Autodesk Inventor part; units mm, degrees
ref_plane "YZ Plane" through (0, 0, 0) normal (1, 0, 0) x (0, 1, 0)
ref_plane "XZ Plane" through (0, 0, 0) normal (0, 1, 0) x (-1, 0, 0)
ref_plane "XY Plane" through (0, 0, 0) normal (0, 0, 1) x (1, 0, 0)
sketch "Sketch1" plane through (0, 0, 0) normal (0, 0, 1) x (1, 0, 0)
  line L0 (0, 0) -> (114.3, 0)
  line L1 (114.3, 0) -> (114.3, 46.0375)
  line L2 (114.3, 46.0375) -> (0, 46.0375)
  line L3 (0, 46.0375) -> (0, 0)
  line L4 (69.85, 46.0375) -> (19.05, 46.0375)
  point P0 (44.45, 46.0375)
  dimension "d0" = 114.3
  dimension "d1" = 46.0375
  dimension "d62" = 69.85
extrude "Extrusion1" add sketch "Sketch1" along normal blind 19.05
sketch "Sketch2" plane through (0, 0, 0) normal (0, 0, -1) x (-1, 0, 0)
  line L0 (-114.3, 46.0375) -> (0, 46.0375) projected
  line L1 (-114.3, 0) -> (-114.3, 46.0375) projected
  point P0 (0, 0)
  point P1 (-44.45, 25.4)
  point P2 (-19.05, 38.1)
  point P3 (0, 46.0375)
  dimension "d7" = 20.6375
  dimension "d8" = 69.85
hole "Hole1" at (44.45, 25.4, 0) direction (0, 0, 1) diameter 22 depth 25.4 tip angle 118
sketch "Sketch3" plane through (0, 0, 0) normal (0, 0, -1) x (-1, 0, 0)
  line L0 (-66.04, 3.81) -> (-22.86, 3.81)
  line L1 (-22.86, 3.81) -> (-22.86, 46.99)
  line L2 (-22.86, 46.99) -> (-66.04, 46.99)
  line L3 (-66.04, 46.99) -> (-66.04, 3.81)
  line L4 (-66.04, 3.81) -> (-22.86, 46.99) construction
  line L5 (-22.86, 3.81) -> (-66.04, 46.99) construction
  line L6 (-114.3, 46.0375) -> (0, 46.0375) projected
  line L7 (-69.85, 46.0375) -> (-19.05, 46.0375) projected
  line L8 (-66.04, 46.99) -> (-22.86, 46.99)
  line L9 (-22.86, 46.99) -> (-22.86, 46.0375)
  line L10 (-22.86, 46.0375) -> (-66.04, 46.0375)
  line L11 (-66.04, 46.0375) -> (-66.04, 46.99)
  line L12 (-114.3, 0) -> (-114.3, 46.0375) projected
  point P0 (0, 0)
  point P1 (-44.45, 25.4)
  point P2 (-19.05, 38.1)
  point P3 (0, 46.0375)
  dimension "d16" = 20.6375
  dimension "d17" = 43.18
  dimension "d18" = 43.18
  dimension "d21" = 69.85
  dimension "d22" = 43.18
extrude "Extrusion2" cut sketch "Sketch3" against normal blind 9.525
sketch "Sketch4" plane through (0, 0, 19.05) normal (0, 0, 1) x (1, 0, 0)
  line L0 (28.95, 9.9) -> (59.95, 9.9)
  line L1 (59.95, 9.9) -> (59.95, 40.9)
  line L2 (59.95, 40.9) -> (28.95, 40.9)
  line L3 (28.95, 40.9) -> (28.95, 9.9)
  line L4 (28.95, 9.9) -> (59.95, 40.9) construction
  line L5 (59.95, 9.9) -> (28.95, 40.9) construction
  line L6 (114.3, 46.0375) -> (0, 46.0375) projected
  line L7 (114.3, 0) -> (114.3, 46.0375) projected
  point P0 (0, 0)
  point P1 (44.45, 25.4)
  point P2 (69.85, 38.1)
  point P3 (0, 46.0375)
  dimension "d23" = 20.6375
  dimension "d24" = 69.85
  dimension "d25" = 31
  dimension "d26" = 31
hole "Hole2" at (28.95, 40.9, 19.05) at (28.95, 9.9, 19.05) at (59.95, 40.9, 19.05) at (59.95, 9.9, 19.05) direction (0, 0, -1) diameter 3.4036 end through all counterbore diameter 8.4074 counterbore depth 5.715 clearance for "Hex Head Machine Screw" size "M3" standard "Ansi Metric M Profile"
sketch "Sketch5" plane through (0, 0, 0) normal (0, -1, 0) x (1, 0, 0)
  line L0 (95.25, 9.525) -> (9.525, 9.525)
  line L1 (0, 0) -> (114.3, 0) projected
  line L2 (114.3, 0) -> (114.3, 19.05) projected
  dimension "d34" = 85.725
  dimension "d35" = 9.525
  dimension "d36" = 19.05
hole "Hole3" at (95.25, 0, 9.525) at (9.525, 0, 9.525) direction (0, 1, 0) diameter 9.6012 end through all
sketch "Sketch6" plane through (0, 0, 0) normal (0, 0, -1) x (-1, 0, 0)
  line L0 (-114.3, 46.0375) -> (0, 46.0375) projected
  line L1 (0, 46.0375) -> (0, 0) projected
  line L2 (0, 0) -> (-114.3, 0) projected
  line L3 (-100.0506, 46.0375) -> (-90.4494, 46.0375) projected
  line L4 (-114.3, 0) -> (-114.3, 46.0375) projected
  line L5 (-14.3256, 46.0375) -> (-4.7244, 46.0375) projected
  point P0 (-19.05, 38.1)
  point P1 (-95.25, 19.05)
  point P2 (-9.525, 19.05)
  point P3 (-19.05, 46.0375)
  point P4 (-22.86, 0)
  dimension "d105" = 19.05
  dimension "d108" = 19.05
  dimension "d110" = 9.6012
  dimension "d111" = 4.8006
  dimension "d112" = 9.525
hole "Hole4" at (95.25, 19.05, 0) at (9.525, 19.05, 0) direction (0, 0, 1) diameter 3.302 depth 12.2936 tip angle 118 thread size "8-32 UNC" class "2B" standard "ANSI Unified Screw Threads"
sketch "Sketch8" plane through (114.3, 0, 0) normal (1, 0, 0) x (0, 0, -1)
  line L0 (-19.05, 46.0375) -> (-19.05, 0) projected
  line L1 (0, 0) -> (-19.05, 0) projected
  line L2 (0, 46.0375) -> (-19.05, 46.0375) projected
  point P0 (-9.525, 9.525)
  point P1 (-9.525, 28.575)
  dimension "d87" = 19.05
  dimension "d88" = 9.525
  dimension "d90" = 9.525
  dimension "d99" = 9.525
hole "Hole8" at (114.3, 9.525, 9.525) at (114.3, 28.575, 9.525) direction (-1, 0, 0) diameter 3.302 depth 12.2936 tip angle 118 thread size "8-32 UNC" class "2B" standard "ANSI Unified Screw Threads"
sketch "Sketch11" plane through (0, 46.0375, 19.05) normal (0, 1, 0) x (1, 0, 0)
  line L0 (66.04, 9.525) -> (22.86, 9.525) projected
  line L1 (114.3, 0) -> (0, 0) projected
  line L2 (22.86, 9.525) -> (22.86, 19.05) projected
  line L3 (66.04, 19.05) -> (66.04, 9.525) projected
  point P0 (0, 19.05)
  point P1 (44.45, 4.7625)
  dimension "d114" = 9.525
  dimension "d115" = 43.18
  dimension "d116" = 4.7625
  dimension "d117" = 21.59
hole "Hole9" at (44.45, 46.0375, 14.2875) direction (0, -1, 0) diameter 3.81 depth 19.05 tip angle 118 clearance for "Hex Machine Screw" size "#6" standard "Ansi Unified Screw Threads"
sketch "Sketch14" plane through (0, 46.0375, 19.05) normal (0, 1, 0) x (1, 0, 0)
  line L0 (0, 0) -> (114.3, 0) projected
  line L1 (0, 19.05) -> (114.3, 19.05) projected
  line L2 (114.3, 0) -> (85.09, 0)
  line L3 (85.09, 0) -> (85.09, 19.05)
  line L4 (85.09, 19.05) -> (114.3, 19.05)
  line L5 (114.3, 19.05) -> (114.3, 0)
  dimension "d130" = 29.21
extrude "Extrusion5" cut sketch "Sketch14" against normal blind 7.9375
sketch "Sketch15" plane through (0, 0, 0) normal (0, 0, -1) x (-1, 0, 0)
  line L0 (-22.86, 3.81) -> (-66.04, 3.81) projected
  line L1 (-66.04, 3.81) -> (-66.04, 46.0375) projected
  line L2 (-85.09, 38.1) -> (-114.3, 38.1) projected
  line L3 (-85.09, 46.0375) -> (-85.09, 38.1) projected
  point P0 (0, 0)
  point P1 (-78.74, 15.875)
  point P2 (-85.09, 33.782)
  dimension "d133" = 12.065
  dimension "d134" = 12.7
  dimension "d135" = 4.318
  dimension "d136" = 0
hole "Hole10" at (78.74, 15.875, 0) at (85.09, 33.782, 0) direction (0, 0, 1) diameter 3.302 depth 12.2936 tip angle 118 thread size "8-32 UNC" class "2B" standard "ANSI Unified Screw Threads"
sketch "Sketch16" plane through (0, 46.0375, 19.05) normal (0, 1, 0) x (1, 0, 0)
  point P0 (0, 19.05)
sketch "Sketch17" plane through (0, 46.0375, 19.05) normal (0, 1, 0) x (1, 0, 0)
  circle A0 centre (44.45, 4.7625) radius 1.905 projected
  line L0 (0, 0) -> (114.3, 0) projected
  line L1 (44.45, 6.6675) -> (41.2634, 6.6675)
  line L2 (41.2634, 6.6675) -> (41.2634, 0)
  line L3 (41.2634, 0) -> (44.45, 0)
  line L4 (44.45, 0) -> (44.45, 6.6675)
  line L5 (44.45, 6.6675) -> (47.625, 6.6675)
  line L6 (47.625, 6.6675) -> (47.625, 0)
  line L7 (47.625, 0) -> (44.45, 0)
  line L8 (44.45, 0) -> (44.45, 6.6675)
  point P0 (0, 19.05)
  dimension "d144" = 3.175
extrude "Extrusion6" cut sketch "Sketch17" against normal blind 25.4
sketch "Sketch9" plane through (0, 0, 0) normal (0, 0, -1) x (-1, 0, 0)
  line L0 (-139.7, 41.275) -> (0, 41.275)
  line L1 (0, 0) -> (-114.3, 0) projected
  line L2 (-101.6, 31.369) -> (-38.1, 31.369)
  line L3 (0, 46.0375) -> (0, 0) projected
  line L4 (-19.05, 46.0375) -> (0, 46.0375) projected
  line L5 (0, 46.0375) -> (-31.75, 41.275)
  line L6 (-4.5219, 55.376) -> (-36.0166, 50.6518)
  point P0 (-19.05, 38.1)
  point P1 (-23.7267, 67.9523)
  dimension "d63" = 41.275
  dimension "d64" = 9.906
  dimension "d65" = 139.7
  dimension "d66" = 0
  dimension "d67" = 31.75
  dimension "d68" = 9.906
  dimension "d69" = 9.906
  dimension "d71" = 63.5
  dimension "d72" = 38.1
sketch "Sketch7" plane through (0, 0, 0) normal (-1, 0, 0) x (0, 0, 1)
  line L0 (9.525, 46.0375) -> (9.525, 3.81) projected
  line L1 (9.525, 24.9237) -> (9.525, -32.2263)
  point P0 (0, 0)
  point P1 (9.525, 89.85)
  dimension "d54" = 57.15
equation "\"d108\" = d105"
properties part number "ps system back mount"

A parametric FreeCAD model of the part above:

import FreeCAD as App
import Part
import Sketcher

V = App.Vector
Q = App.Units.Quantity


def add_polygon(sketch, points):
    """Adds a closed chain of lines whose ends are joined by coincident constraints."""
    first, n = sketch.GeometryCount, len(points)
    for a, b in zip(points, points[1:] + points[:1]):
        sketch.addGeometry(Part.LineSegment(App.Vector(*a, 0), App.Vector(*b, 0)), False)
    for i in range(n):
        sketch.addConstraint(Sketcher.Constraint("Coincident", first + i, 2, first + (i + 1) % n, 1))

doc = App.newDocument("Part")
params = doc.addObject("Spreadsheet::Sheet", "Params")
for row, (alias, value) in enumerate([
    ("sketch1_width", "4.5 in"),
    ("sketch1_height", "1.8125 in"),
    ("pad1_length", "0.75 in"),
    ("hole_diameter", "22 mm"),
    ("hole_depth", "1 in"),
    ("sketch3_width", "1.7 in"),
    ("pocket1_length", "0.375 in"),
    ("sketch4_diameter", "0.134 in"),
    ("hole2_diameter", "0.134 in"),
    ("hole2_cbore_diameter", "0.331 in"),
    ("hole2_cbore_depth", "0.225 in"),
    ("sketch5_diameter", "0.378 in"),
    ("hole3_diameter", "0.378 in"),
    ("sketch6_diameter", "0.13 in"),
    ("hole4_diameter", "0.13 in"),
    ("hole4_depth", "0.484 in"),
    ("sketch7_diameter", "0.13 in"),
    ("hole5_diameter", "0.13 in"),
    ("hole5_depth", "0.484 in"),
    ("sketch8_diameter", "0.15 in"),
    ("hole6_diameter", "0.15 in"),
    ("hole6_depth", "0.75 in"),
    ("sketch9_width", "1.15 in"),
    ("sketch9_height", "0.75 in"),
    ("pocket2_length", "0.3125 in"),
    ("sketch10_diameter", "0.13 in"),
    ("hole7_diameter", "0.13 in"),
    ("hole7_depth", "0.484 in"),
    ("pocket3_length", "1 in"),
], start=1):
    params.set(f"A{row}", alias)
    params.set(f"B{row}", "=" + value)
    params.setAlias(f"B{row}", alias)

body = doc.addObject("PartDesign::Body", "Body")

# Sketch on XY plane
sketch1 = body.newObject("Sketcher::SketchObject", "Sketch")
sketch1.AttachmentSupport = (doc.getObject("XY_Plane"), [""])
sketch1.MapMode = "FlatFace"
add_polygon(sketch1, [(0, 46), (0, 0), (114, 0), (114, 46)])  # lines 0-3
sketch1.addConstraint(Sketcher.Constraint("Vertical", 0))
sketch1.addConstraint(Sketcher.Constraint("Horizontal", 1))
sketch1.addConstraint(Sketcher.Constraint("Vertical", 2))
sketch1.addConstraint(Sketcher.Constraint("Horizontal", 3))
sketch1.addConstraint(Sketcher.Constraint("Coincident", 0, 2, -1, 1))
sketch1.addConstraint(Sketcher.Constraint("DistanceX", 1, 1, 1, 2, Q("4.5 in")))
sketch1.addConstraint(Sketcher.Constraint("DistanceY", 0, 2, 0, 1, Q("1.8125 in")))
sketch1.setExpression("Constraints[9]", "Params.sketch1_width")
sketch1.setExpression("Constraints[10]", "Params.sketch1_height")
pad1 = body.newObject("PartDesign::Pad", "Pad")
pad1.Profile = sketch1
pad1.setExpression("Length", "Params.pad1_length")

# Sketch on XY plane
sketch2 = body.newObject("Sketcher::SketchObject", "Sketch001")
sketch2.AttachmentSupport = (doc.getObject("XY_Plane"), [""])
sketch2.MapMode = "FlatFace"
sketch2.addGeometry(Part.Circle(V(44, 25, 0), V(0, 0, 1), 11), False)
sketch2.addConstraint(Sketcher.Constraint("DistanceY", -1, 1, 0, 3, Q("1 in")))
sketch2.addConstraint(Sketcher.Constraint("Diameter", 0, Q("22 mm")))
sketch2.addConstraint(Sketcher.Constraint("DistanceX", -1, 1, 0, 3, Q("1.75 in")))
doc.recompute()
hole = body.newObject("PartDesign::Hole", "Hole")
hole.Profile = sketch2
hole.ThreadType = "None"
hole.setExpression("Diameter", "Params.hole_diameter")
hole.DepthType = "Dimension"
hole.setExpression("Depth", "Params.hole_depth")
hole.DrillPoint = "Angled"
hole.DrillPointAngle = 118
hole.Reversed = True

# Sketch on XY plane
sketch3 = body.newObject("Sketcher::SketchObject", "Sketch002")
sketch3.AttachmentSupport = (doc.getObject("XY_Plane"), [""])
sketch3.MapMode = "FlatFace"
add_polygon(sketch3, [(66, 4), (23, 4), (23, 47), (66, 47)])  # lines 0-3
sketch3.addConstraint(Sketcher.Constraint("Horizontal", 0))
sketch3.addConstraint(Sketcher.Constraint("Vertical", 1))
sketch3.addConstraint(Sketcher.Constraint("Horizontal", 2))
sketch3.addConstraint(Sketcher.Constraint("Vertical", 3))
sketch3.addConstraint(Sketcher.Constraint("Equal", 2, 1))
sketch3.addConstraint(Sketcher.Constraint("DistanceX", 0, 2, 0, 1, Q("1.7 in")))
sketch3.addConstraint(Sketcher.Constraint("DistanceX", -1, 1, 0, 2, Q("0.9 in")))
sketch3.addConstraint(Sketcher.Constraint("DistanceY", -1, 1, 0, 2, Q("0.15 in")))
sketch3.setExpression("Constraints[9]", "Params.sketch3_width")
pocket1 = body.newObject("PartDesign::Pocket", "Pocket")
pocket1.Profile = sketch3
pocket1.setExpression("Length", "Params.pocket1_length")
pocket1.Reversed = True

# Sketch on XY plane
sketch4 = body.newObject("Sketcher::SketchObject", "Sketch003")
sketch4.AttachmentSupport = (doc.getObject("XY_Plane"), [""])
sketch4.MapMode = "FlatFace"
sketch4.AttachmentOffset = App.Placement(V(0, 0, 0.75 * 25.4), App.Rotation())
sketch4.addGeometry(Part.Circle(V(28.9, 40.9, 0), V(0, 0, 1), 1.7), False)
sketch4.addGeometry(Part.Circle(V(28.9, 9.9, 0), V(0, 0, 1), 1.7), False)
sketch4.addGeometry(Part.Circle(V(60, 40.9, 0), V(0, 0, 1), 1.7), False)
sketch4.addGeometry(Part.Circle(V(60, 9.9, 0), V(0, 0, 1), 1.7), False)
sketch4.addConstraint(Sketcher.Constraint("Equal", 0, 1))
sketch4.addConstraint(Sketcher.Constraint("Equal", 1, 2))
sketch4.addConstraint(Sketcher.Constraint("Equal", 2, 3))
sketch4.addConstraint(Sketcher.Constraint("Horizontal", 0, 3, 2, 3))
sketch4.addConstraint(Sketcher.Constraint("Horizontal", 1, 3, 3, 3))
sketch4.addConstraint(Sketcher.Constraint("Vertical", 0, 3, 1, 3))
sketch4.addConstraint(Sketcher.Constraint("Vertical", 2, 3, 3, 3))
sketch4.addConstraint(Sketcher.Constraint("Diameter", 0, Q("0.134 in")))
sketch4.addConstraint(Sketcher.Constraint("DistanceX", -1, 1, 0, 3, Q("28.95 mm")))
sketch4.addConstraint(Sketcher.Constraint("DistanceY", -1, 1, 0, 3, Q("40.9 mm")))
sketch4.addConstraint(Sketcher.Constraint("DistanceY", -1, 1, 1, 3, Q("9.9 mm")))
sketch4.addConstraint(Sketcher.Constraint("DistanceX", -1, 1, 2, 3, Q("59.95 mm")))
sketch4.setExpression("Constraints[7]", "Params.sketch4_diameter")
doc.recompute()
hole2 = body.newObject("PartDesign::Hole", "Hole001")
hole2.Profile = sketch4
hole2.ThreadType = "None"
hole2.setExpression("Diameter", "Params.hole2_diameter")
hole2.DepthType = "ThroughAll"
hole2.HoleCutType = "Counterbore"
hole2.setExpression("HoleCutDiameter", "Params.hole2_cbore_diameter")
hole2.setExpression("HoleCutDepth", "Params.hole2_cbore_depth")

# Sketch on XZ plane
sketch5 = body.newObject("Sketcher::SketchObject", "Sketch004")
sketch5.AttachmentSupport = (doc.getObject("XZ_Plane"), [""])
sketch5.MapMode = "FlatFace"
sketch5.addGeometry(Part.Circle(V(95.2, 9.5, 0), V(0, 0, 1), 4.8), False)
sketch5.addGeometry(Part.Circle(V(9.5, 9.5, 0), V(0, 0, 1), 4.8), False)
sketch5.addConstraint(Sketcher.Constraint("Equal", 0, 1))
sketch5.addConstraint(Sketcher.Constraint("Horizontal", 0, 3, 1, 3))
sketch5.addConstraint(Sketcher.Constraint("Diameter", 0, Q("0.378 in")))
sketch5.addConstraint(Sketcher.Constraint("DistanceX", -1, 1, 0, 3, Q("3.75 in")))
sketch5.addConstraint(Sketcher.Constraint("DistanceY", -1, 1, 0, 3, Q("0.375 in")))
sketch5.addConstraint(Sketcher.Constraint("DistanceX", -1, 1, 1, 3, Q("0.375 in")))
sketch5.setExpression("Constraints[2]", "Params.sketch5_diameter")
doc.recompute()
hole3 = body.newObject("PartDesign::Hole", "Hole002")
hole3.Profile = sketch5
hole3.ThreadType = "None"
hole3.setExpression("Diameter", "Params.hole3_diameter")
hole3.DepthType = "ThroughAll"

# Sketch on XY plane
sketch6 = body.newObject("Sketcher::SketchObject", "Sketch005")
sketch6.AttachmentSupport = (doc.getObject("XY_Plane"), [""])
sketch6.MapMode = "FlatFace"
sketch6.addGeometry(Part.Circle(V(95.2, 19.1, 0), V(0, 0, 1), 1.7), False)
sketch6.addGeometry(Part.Circle(V(9.5, 19.1, 0), V(0, 0, 1), 1.7), False)
sketch6.addConstraint(Sketcher.Constraint("Equal", 0, 1))
sketch6.addConstraint(Sketcher.Constraint("Horizontal", 0, 3, 1, 3))
sketch6.addConstraint(Sketcher.Constraint("Diameter", 0, Q("0.13 in")))
sketch6.addConstraint(Sketcher.Constraint("DistanceX", -1, 1, 0, 3, Q("3.75 in")))
sketch6.addConstraint(Sketcher.Constraint("DistanceY", -1, 1, 0, 3, Q("0.75 in")))
sketch6.addConstraint(Sketcher.Constraint("DistanceX", -1, 1, 1, 3, Q("0.375 in")))
sketch6.setExpression("Constraints[2]", "Params.sketch6_diameter")
doc.recompute()
hole4 = body.newObject("PartDesign::Hole", "Hole003")
hole4.Profile = sketch6
hole4.ThreadType = "None"
hole4.setExpression("Diameter", "Params.hole4_diameter")
hole4.DepthType = "Dimension"
hole4.setExpression("Depth", "Params.hole4_depth")
hole4.DrillPoint = "Angled"
hole4.DrillPointAngle = 118
hole4.Reversed = True

# Sketch on YZ plane
sketch7 = body.newObject("Sketcher::SketchObject", "Sketch006")
sketch7.AttachmentSupport = (doc.getObject("YZ_Plane"), [""])
sketch7.MapMode = "FlatFace"
sketch7.AttachmentOffset = App.Placement(V(0, 0, 4.5 * 25.4), App.Rotation())
sketch7.addGeometry(Part.Circle(V(9.5, 9.5, 0), V(0, 0, 1), 1.7), False)
sketch7.addGeometry(Part.Circle(V(28.6, 9.5, 0), V(0, 0, 1), 1.7), False)
sketch7.addConstraint(Sketcher.Constraint("Equal", 0, 1))
sketch7.addConstraint(Sketcher.Constraint("Horizontal", 0, 3, 1, 3))
sketch7.addConstraint(Sketcher.Constraint("Diameter", 0, Q("0.13 in")))
sketch7.addConstraint(Sketcher.Constraint("DistanceX", 0, 3, 1, 3, Q("0.75 in")))
sketch7.addConstraint(Sketcher.Constraint("DistanceX", -1, 1, 0, 3, Q("0.375 in")))
sketch7.addConstraint(Sketcher.Constraint("DistanceY", -1, 1, 0, 3, Q("0.375 in")))
sketch7.setExpression("Constraints[2]", "Params.sketch7_diameter")
doc.recompute()
hole5 = body.newObject("PartDesign::Hole", "Hole004")
hole5.Profile = sketch7
hole5.ThreadType = "None"
hole5.setExpression("Diameter", "Params.hole5_diameter")
hole5.DepthType = "Dimension"
hole5.setExpression("Depth", "Params.hole5_depth")
hole5.DrillPoint = "Angled"
hole5.DrillPointAngle = 118

# Sketch on XZ plane
sketch8 = body.newObject("Sketcher::SketchObject", "Sketch007")
sketch8.AttachmentSupport = (doc.getObject("XZ_Plane"), [""])
sketch8.MapMode = "FlatFace"
sketch8.AttachmentOffset = App.Placement(V(0, 0, -1.8125 * 25.4), App.Rotation())
sketch8.addGeometry(Part.Circle(V(44.5, 14.3, 0), V(0, 0, 1), 1.9), False)
sketch8.addConstraint(Sketcher.Constraint("Diameter", 0, Q("0.15 in")))
sketch8.addConstraint(Sketcher.Constraint("DistanceX", -1, 1, 0, 3, Q("1.75 in")))
sketch8.addConstraint(Sketcher.Constraint("DistanceY", -1, 1, 0, 3, Q("0.5625 in")))
sketch8.setExpression("Constraints[0]", "Params.sketch8_diameter")
doc.recompute()
hole6 = body.newObject("PartDesign::Hole", "Hole005")
hole6.Profile = sketch8
hole6.ThreadType = "None"
hole6.setExpression("Diameter", "Params.hole6_diameter")
hole6.DepthType = "Dimension"
hole6.setExpression("Depth", "Params.hole6_depth")
hole6.DrillPoint = "Angled"
hole6.DrillPointAngle = 118
hole6.Reversed = True

# Sketch on XZ plane
sketch9 = body.newObject("Sketcher::SketchObject", "Sketch008")
sketch9.AttachmentSupport = (doc.getObject("XZ_Plane"), [""])
sketch9.MapMode = "FlatFace"
sketch9.AttachmentOffset = App.Placement(V(0, 0, -1.8125 * 25.4), App.Rotation())
add_polygon(sketch9, [(85, 0), (85, 19), (114, 19), (114, 0)])  # lines 0-3
sketch9.addConstraint(Sketcher.Constraint("Vertical", 0))
sketch9.addConstraint(Sketcher.Constraint("Horizontal", 1))
sketch9.addConstraint(Sketcher.Constraint("Vertical", 2))
sketch9.addConstraint(Sketcher.Constraint("Horizontal", 3))
sketch9.addConstraint(Sketcher.Constraint("PointOnObject", 2, 2, -1))
sketch9.addConstraint(Sketcher.Constraint("DistanceX", 1, 1, 1, 2, Q("1.15 in")))
sketch9.addConstraint(Sketcher.Constraint("DistanceY", 0, 1, 0, 2, Q("0.75 in")))
sketch9.addConstraint(Sketcher.Constraint("DistanceX", -1, 1, 1, 2, Q("4.5 in")))
sketch9.setExpression("Constraints[9]", "Params.sketch9_width")
sketch9.setExpression("Constraints[10]", "Params.sketch9_height")
pocket2 = body.newObject("PartDesign::Pocket", "Pocket001")
pocket2.Profile = sketch9
pocket2.setExpression("Length", "Params.pocket2_length")
pocket2.Reversed = True

# Sketch on XY plane
sketch10 = body.newObject("Sketcher::SketchObject", "Sketch009")
sketch10.AttachmentSupport = (doc.getObject("XY_Plane"), [""])
sketch10.MapMode = "FlatFace"
sketch10.addGeometry(Part.Circle(V(78.7, 15.9, 0), V(0, 0, 1), 1.7), False)
sketch10.addGeometry(Part.Circle(V(85.1, 33.8, 0), V(0, 0, 1), 1.7), False)
sketch10.addConstraint(Sketcher.Constraint("Equal", 0, 1))
sketch10.addConstraint(Sketcher.Constraint("Diameter", 0, Q("0.13 in")))
sketch10.addConstraint(Sketcher.Constraint("DistanceX", -1, 1, 0, 3, Q("3.1 in")))
sketch10.addConstraint(Sketcher.Constraint("DistanceX", -1, 1, 1, 3, Q("3.35 in")))
sketch10.addConstraint(Sketcher.Constraint("DistanceY", -1, 1, 1, 3, Q("1.33 in")))
sketch10.addConstraint(Sketcher.Constraint("DistanceY", -1, 1, 0, 3, Q("0.625 in")))
sketch10.setExpression("Constraints[1]", "Params.sketch10_diameter")
doc.recompute()
hole7 = body.newObject("PartDesign::Hole", "Hole006")
hole7.Profile = sketch10
hole7.ThreadType = "None"
hole7.setExpression("Diameter", "Params.hole7_diameter")
hole7.DepthType = "Dimension"
hole7.setExpression("Depth", "Params.hole7_depth")
hole7.DrillPoint = "Angled"
hole7.DrillPointAngle = 118
hole7.Reversed = True

# Sketch on XZ plane
sketch11 = body.newObject("Sketcher::SketchObject", "Sketch010")
sketch11.AttachmentSupport = (doc.getObject("XZ_Plane"), [""])
sketch11.MapMode = "FlatFace"
sketch11.AttachmentOffset = App.Placement(V(0, 0, -1.8125 * 25.4), App.Rotation())
add_polygon(sketch11, [(48, 12), (41, 12), (41, 19), (48, 19)])  # lines 0-3
sketch11.addConstraint(Sketcher.Constraint("Horizontal", 0))
sketch11.addConstraint(Sketcher.Constraint("Vertical", 1))
sketch11.addConstraint(Sketcher.Constraint("Horizontal", 2))
sketch11.addConstraint(Sketcher.Constraint("Vertical", 3))
sketch11.addConstraint(Sketcher.Constraint("DistanceY", -1, 1, 1, 2, Q("0.75 in")))
sketch11.addConstraint(Sketcher.Constraint("DistanceY", 1, 1, 1, 2, Q("0.2625 in")))
sketch11.addConstraint(Sketcher.Constraint("DistanceX", -1, 1, 2, 2, Q("1.875 in")))
sketch11.addConstraint(Sketcher.Constraint("DistanceX", 0, 2, 0, 1, Q("6.3616 mm")))
pocket3 = body.newObject("PartDesign::Pocket", "Pocket002")
pocket3.Profile = sketch11
pocket3.setExpression("Length", "Params.pocket3_length")
pocket3.Reversed = True

doc.recompute()
